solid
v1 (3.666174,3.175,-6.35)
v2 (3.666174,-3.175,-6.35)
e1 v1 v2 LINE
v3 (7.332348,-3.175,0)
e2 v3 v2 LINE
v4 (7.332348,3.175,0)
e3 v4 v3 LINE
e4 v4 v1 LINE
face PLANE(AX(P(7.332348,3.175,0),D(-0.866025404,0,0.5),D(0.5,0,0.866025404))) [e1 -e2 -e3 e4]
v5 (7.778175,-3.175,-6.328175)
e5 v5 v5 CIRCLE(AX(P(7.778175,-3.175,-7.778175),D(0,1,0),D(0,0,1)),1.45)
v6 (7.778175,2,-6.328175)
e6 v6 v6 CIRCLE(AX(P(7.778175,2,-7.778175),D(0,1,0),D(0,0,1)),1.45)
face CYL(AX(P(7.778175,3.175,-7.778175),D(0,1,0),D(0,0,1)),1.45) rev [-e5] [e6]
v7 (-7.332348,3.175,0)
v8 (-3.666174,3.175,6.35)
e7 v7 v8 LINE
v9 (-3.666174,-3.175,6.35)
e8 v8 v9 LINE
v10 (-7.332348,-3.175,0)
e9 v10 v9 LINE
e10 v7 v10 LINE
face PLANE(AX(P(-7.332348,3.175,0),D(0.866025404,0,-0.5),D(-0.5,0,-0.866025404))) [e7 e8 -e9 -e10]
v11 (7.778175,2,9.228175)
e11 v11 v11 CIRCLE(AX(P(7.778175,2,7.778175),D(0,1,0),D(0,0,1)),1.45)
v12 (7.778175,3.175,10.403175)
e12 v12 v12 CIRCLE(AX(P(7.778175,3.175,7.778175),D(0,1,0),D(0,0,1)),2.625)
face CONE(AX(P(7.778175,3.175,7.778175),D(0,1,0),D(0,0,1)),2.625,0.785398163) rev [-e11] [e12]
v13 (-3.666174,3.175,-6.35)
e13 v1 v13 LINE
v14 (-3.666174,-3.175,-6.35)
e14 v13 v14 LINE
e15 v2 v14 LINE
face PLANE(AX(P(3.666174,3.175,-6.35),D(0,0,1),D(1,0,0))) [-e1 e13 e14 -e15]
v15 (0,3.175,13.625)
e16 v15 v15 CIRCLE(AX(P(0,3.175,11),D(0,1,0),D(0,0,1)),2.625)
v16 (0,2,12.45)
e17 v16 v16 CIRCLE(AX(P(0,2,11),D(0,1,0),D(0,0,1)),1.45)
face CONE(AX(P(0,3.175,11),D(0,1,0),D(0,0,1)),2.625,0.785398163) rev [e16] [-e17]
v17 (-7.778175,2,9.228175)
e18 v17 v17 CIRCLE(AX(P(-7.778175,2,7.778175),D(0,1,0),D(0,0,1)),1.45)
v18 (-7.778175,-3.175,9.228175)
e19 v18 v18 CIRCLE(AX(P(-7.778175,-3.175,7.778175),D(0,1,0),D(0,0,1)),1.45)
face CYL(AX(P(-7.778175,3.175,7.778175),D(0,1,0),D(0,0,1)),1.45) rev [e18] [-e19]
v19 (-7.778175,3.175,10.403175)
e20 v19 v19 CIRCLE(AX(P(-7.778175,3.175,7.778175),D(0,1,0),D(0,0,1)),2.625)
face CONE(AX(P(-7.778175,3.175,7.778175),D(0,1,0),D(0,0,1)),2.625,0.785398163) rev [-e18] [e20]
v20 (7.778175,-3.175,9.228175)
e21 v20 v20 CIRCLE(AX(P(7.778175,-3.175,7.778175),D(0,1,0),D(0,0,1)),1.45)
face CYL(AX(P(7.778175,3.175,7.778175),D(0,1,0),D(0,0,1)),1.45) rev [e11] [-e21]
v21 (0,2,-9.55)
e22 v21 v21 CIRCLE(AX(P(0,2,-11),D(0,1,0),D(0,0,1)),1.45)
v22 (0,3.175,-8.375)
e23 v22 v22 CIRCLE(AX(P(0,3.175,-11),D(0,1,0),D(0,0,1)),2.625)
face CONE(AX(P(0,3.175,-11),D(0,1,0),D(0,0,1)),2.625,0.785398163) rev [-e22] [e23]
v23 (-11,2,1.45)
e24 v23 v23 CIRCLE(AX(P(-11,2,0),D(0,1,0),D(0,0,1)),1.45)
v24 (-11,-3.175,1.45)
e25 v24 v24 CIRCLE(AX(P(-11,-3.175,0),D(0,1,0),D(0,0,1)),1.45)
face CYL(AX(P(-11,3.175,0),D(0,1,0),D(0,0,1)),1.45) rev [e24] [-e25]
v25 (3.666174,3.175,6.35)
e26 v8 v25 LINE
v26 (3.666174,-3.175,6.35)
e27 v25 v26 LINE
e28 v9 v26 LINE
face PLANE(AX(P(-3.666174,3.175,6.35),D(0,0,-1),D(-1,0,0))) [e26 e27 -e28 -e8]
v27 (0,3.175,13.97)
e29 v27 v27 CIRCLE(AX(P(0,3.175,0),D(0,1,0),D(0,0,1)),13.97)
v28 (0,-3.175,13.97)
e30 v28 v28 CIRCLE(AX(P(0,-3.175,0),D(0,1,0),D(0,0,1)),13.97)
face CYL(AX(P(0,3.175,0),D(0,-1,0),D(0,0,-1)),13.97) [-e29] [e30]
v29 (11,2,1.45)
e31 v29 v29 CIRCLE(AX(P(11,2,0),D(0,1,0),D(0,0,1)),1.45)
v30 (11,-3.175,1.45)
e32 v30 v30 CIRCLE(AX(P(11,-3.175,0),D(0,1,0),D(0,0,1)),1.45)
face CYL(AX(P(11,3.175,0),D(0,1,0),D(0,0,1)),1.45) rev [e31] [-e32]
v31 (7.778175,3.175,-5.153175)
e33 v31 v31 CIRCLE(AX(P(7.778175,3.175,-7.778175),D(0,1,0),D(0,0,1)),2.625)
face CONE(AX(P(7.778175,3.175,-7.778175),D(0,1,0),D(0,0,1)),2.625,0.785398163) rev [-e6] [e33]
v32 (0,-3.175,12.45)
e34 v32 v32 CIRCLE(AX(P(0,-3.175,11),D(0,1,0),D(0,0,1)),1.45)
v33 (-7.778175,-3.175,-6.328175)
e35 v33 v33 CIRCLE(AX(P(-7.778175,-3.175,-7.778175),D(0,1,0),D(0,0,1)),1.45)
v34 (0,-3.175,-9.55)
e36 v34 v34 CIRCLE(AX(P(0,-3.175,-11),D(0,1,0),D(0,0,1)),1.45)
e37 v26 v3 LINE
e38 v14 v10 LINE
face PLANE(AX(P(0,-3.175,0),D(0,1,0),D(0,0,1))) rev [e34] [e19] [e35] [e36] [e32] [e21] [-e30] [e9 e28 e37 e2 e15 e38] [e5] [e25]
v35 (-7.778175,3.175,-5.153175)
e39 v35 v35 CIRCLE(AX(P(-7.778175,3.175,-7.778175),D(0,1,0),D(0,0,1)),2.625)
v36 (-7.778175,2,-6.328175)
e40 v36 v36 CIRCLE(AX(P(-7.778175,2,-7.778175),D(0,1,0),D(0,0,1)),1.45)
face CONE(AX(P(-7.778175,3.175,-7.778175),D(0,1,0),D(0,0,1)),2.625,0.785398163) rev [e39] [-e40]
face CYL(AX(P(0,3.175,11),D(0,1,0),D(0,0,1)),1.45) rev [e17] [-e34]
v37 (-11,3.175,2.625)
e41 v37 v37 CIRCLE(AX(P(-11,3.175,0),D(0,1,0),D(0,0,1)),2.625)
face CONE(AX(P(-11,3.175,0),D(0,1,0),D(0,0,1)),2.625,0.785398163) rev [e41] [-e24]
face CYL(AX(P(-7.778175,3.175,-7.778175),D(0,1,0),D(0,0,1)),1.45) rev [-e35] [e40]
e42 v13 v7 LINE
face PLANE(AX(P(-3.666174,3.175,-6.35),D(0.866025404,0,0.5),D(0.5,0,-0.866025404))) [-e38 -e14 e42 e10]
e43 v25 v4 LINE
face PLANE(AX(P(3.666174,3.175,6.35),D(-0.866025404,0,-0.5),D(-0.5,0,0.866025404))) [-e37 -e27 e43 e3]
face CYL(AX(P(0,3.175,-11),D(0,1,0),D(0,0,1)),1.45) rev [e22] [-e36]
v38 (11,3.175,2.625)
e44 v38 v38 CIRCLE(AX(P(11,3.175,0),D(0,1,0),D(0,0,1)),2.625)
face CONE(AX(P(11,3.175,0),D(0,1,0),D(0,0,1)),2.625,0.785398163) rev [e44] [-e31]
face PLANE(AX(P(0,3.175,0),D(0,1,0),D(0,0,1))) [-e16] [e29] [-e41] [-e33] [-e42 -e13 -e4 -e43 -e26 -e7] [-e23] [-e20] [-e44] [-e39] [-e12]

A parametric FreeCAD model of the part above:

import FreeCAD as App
import Part
import Sketcher
Q = App.Units.Quantity


def add_polygon(sketch, points):
    """Adds a closed chain of lines whose ends are joined by coincident constraints."""
    first, n = sketch.GeometryCount, len(points)
    for a, b in zip(points, points[1:] + points[:1]):
        sketch.addGeometry(Part.LineSegment(App.Vector(*a, 0), App.Vector(*b, 0)), False)
    for i in range(n):
        sketch.addConstraint(Sketcher.Constraint("Coincident", first + i, 2, first + (i + 1) % n, 1))

doc = App.newDocument("Part")
body = doc.addObject("PartDesign::Body", "Body")

sketch1 = body.newObject("Sketcher::SketchObject", "Sketch")
sketch1.AttachmentSupport = (doc.getObject("XZ_Plane"), [""])
sketch1.MapMode = "FlatFace"
sketch1.addGeometry(Part.Circle(App.Vector(0, 0, 0), App.Vector(0, 0, 1), 14), False)
add_polygon(sketch1, [(-4, -6), (4, -6), (7, 0), (4, 6), (-4, 6), (-7, 0)])
sketch1.addConstraint([
    Sketcher.Constraint("Horizontal", 1),
    Sketcher.Constraint("Horizontal", 4),
    Sketcher.Constraint("Coincident", 0, 3, -1, 1),
    Sketcher.Constraint("Symmetric", 1, 2, 4, 2, -1, 1),
    Sketcher.Constraint("Symmetric", 2, 2, 5, 2, -1, 1),
    Sketcher.Constraint("PointOnObject", 2, 2, -1),
    Sketcher.Constraint("Parallel", 3, 6),
    Sketcher.Constraint("Vertical", 1, 2, 3, 2),
    Sketcher.Constraint("Diameter", 0, Q("1.1 in")),
    Sketcher.Constraint("Angle", 2, Q("60 deg")),
    Sketcher.Constraint("DistanceY", 1, 2, 3, 2, Q("0.5 in")),
    Sketcher.Constraint("DistanceX", 1, 1, 1, 2, 7.332348),
])
pad1 = body.newObject("PartDesign::Pad", "Pad")
pad1.Profile = sketch1
pad1.Length = Q("0.25 in")
pad1.Midplane = True

sketch2 = body.newObject("Sketcher::SketchObject", "Sketch001")
sketch2.AttachmentSupport = (doc.getObject("XZ_Plane"), [""])
sketch2.MapMode = "FlatFace"
sketch2.AttachmentOffset = App.Placement(App.Vector(0, 0, -0.125 * 25.4), App.Rotation())
sketch2.addGeometry(Part.Circle(App.Vector(0, -11, 0), App.Vector(0, 0, 1), 1.4), False)
sketch2.addConstraint([
    Sketcher.Constraint("PointOnObject", 0, 3, -2),
    Sketcher.Constraint("Diameter", 0, 2.9),
    Sketcher.Constraint("DistanceY", 0, 3, -1, 1, 11.0),
])
doc.recompute()
hole = body.newObject("PartDesign::Hole", "Hole")
hole.Profile = sketch2
hole.ThreadType = "None"
hole.Diameter = 2.9
hole.DepthType = "ThroughAll"
hole.HoleCutType = "Countersink"
hole.HoleCutDiameter = 5.25
hole.HoleCutCountersinkAngle = 90
hole.Reversed = True
doc.recompute()

polarpattern = body.newObject("PartDesign::PolarPattern", "PolarPattern")
polarpattern.Originals = [hole]
polarpattern.Axis = (doc.getObject("Y_Axis"), [""])
polarpattern.Angle = 360
polarpattern.Occurrences = 8
body.Tip = polarpattern

doc.recompute()
